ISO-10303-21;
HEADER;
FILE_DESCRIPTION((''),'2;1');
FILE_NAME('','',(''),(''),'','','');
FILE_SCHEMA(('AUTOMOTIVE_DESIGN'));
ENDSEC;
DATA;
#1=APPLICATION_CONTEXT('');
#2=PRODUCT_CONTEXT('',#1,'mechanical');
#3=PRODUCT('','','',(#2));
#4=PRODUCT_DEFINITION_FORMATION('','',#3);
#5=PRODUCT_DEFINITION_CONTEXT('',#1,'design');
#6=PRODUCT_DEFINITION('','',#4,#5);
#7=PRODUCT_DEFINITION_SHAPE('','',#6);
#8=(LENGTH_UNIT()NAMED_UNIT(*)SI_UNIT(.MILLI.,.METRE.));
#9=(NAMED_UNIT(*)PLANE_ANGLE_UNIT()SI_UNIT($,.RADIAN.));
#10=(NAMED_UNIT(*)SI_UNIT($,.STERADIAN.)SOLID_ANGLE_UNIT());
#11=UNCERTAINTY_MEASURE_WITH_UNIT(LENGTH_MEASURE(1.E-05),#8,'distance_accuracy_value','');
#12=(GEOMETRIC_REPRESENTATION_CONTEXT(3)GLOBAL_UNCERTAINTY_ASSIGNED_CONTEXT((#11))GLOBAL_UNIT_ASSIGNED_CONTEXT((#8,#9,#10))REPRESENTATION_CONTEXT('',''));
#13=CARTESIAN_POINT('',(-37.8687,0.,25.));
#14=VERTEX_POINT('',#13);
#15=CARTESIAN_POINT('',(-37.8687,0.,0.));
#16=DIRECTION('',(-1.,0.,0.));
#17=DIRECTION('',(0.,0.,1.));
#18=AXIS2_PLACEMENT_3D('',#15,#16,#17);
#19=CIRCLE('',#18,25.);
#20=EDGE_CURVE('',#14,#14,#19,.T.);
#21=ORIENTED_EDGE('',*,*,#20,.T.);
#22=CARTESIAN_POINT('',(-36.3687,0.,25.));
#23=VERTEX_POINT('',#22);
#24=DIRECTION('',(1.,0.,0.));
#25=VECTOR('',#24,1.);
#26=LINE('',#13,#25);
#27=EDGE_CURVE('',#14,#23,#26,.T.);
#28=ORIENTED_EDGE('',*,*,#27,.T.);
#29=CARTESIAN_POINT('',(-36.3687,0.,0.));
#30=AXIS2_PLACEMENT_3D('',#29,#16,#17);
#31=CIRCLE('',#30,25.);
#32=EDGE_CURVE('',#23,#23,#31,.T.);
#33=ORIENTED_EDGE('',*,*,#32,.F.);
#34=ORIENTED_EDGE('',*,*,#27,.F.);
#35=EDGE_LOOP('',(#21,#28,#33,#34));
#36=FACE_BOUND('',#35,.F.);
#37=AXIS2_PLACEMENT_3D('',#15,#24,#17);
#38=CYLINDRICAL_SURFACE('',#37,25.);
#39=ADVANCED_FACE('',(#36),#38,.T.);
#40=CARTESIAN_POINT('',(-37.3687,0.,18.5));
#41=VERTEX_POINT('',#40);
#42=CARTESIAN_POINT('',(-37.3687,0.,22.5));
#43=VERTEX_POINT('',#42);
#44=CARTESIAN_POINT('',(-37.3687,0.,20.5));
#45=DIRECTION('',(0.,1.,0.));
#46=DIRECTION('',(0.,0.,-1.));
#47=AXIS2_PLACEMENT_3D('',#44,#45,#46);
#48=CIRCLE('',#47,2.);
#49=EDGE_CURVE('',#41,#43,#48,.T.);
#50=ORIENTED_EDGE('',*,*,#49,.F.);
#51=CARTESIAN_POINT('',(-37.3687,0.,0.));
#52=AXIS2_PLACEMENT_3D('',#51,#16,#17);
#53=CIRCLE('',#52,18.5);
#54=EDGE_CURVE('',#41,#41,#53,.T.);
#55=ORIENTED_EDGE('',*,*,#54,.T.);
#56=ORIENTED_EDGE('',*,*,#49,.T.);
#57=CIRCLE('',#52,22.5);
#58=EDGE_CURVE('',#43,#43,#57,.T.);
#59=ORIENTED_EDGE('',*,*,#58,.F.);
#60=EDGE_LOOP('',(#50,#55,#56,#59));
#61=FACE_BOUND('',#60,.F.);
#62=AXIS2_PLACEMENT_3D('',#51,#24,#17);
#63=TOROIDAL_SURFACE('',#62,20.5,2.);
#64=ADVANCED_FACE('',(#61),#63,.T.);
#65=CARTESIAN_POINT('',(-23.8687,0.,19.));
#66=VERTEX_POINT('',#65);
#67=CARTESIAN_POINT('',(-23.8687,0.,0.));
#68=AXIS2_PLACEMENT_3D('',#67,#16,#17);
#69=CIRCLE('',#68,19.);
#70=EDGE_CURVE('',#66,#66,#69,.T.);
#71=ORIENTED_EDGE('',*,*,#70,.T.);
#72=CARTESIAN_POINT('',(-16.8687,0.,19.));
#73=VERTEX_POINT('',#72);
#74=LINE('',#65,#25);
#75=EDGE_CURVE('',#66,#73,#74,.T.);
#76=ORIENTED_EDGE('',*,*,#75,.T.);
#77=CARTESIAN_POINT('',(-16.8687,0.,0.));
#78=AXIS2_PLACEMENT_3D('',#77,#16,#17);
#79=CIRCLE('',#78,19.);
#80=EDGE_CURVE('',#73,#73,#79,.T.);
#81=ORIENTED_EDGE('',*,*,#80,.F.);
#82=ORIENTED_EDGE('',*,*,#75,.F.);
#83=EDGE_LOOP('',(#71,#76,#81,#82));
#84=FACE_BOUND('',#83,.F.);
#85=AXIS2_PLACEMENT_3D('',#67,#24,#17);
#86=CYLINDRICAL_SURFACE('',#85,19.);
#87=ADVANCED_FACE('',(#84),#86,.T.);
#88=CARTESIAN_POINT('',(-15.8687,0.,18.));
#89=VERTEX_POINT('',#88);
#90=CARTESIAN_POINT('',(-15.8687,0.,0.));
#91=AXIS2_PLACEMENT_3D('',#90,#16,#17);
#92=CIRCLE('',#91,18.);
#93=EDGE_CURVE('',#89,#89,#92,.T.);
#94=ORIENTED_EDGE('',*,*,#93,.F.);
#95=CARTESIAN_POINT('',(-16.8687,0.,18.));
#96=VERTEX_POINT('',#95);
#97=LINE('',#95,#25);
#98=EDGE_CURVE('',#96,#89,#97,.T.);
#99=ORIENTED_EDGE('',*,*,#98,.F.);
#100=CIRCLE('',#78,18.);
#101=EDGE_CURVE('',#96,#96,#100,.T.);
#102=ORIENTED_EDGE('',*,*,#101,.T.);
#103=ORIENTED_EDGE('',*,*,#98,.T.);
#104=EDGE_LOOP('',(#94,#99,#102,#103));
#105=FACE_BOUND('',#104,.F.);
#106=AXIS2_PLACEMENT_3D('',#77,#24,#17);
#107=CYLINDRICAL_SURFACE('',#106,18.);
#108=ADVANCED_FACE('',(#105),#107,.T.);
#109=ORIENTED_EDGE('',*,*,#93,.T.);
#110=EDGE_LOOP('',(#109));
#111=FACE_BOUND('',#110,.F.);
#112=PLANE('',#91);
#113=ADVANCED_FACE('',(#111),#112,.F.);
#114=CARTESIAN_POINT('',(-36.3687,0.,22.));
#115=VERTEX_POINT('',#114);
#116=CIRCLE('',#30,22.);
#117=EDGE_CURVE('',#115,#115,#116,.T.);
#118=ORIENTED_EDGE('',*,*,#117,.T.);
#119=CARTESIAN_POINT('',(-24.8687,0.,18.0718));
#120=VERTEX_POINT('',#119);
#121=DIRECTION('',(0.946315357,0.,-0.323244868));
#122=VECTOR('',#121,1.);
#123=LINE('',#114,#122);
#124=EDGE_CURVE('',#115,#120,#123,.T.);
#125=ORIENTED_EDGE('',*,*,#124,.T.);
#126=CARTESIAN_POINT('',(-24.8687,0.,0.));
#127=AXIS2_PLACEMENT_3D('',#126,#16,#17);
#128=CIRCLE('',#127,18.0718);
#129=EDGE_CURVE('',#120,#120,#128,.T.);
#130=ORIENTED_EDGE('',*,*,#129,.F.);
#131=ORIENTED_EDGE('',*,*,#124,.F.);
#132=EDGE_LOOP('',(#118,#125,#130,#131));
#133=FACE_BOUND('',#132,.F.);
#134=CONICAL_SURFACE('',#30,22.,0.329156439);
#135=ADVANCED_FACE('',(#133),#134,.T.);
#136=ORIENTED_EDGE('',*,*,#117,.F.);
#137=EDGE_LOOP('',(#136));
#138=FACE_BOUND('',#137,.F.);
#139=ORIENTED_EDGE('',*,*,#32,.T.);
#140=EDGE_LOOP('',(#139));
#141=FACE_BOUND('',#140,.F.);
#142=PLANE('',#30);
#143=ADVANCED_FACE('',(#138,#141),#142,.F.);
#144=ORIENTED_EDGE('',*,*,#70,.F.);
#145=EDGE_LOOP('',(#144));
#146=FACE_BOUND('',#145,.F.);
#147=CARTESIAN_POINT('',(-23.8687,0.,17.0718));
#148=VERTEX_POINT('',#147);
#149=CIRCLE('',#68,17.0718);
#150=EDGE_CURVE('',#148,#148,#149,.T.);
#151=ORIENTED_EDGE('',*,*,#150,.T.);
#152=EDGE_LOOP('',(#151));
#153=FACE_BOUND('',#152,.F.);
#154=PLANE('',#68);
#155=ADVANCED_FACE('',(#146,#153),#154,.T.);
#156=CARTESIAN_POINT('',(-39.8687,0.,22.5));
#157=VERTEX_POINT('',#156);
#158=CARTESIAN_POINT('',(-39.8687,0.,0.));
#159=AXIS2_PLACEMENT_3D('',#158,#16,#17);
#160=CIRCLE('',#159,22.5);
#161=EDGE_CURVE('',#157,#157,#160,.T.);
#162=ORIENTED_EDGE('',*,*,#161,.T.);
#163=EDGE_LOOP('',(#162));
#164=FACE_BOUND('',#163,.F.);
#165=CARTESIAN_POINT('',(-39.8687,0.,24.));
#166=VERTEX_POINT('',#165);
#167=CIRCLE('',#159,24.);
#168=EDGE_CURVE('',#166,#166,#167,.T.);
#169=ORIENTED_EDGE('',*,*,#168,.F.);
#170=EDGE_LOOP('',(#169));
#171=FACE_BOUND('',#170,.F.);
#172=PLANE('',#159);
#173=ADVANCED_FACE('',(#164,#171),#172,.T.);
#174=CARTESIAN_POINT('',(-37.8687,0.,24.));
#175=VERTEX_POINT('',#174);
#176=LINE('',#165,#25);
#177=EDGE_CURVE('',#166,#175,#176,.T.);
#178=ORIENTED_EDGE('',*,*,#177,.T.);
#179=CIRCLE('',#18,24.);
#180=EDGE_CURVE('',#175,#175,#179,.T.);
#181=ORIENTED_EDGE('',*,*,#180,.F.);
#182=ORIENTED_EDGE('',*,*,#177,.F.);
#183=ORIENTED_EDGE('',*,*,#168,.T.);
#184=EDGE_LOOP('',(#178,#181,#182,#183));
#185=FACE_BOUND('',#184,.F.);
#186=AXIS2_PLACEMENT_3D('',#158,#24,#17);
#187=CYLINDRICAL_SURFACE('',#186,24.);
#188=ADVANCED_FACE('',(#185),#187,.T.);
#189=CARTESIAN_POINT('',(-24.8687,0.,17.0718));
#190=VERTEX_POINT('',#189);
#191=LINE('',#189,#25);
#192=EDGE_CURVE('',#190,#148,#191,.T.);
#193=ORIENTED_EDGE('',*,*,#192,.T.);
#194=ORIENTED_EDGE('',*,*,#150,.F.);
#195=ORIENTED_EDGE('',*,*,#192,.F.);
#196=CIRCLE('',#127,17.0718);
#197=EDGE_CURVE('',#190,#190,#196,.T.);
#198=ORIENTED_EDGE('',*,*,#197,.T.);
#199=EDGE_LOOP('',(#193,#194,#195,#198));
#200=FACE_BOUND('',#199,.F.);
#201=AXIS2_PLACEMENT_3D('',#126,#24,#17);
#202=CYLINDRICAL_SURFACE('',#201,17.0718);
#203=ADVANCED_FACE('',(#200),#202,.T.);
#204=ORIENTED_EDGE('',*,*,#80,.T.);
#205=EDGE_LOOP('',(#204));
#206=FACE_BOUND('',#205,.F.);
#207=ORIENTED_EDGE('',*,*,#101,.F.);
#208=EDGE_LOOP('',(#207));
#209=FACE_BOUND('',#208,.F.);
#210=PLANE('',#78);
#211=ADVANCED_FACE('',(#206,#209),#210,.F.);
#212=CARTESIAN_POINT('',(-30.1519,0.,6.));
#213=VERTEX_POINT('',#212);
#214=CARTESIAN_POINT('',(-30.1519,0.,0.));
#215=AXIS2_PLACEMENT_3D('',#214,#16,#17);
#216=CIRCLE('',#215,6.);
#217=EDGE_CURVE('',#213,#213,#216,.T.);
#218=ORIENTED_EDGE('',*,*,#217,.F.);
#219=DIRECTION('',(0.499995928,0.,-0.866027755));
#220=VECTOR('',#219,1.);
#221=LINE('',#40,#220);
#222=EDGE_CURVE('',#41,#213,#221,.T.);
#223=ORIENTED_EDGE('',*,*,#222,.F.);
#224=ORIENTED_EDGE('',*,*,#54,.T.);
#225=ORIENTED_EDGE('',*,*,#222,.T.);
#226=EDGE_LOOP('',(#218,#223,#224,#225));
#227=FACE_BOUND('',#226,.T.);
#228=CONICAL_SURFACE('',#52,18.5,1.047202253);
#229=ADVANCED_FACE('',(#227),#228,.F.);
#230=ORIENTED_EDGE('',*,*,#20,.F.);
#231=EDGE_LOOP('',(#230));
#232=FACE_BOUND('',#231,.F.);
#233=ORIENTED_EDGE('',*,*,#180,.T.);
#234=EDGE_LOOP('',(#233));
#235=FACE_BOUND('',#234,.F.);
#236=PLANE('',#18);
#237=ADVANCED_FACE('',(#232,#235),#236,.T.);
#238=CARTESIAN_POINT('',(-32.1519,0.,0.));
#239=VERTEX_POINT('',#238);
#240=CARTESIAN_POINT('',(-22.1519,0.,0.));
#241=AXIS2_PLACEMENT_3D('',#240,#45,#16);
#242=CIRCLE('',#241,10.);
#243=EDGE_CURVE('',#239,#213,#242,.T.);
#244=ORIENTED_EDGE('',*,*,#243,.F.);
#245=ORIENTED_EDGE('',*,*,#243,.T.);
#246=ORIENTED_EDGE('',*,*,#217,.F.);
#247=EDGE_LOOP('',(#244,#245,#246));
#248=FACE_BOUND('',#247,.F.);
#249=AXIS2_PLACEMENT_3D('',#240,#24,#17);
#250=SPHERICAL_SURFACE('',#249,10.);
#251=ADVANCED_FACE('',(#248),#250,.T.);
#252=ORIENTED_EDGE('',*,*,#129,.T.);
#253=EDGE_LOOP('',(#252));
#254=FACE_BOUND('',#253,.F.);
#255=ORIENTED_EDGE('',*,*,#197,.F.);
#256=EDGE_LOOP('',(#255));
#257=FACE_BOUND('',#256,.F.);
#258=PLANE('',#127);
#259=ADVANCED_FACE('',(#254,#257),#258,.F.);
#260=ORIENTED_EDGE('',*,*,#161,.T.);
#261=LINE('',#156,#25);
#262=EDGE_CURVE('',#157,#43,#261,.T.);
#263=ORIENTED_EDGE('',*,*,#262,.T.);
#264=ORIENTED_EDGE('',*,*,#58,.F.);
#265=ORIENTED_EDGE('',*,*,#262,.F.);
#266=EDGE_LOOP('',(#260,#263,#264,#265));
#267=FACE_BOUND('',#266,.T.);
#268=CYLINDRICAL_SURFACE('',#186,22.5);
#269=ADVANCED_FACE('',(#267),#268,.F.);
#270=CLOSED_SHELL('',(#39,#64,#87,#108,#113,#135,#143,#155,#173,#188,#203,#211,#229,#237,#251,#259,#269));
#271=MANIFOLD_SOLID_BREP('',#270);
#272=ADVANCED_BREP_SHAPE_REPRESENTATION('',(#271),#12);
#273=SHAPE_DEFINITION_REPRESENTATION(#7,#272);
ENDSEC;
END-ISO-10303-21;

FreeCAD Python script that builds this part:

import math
import FreeCAD as App
import Part
import Sketcher
from FreeCAD import Vector
Q = App.Units.Quantity

doc = App.newDocument("Part")
body = doc.addObject("PartDesign::Body", "Body")

sketch1 = doc.addObject("Sketcher::SketchObject", "Sketch")
body.addObject(sketch1)
sketch1.AttachmentSupport = (doc.XZ_Plane, [""])
sketch1.MapMode = "FlatFace"
sketch1.addGeometry([
    Part.LineSegment(Vector(-37.3687, 22.5, 0), Vector(-39.8687, 22.5, 0)),
    Part.LineSegment(Vector(-39.8687, 22.5, 0), Vector(-39.8687, 24, 0)),
    Part.LineSegment(Vector(-39.8687, 24, 0), Vector(-37.8687, 24, 0)),
    Part.LineSegment(Vector(-37.8687, 24, 0), Vector(-37.8687, 25, 0)),
    Part.LineSegment(Vector(-37.8687, 25, 0), Vector(-36.3687, 25, 0)),
    Part.LineSegment(Vector(-36.3687, 25, 0), Vector(-36.3687, 22, 0)),
    Part.LineSegment(Vector(-36.3687, 22, 0), Vector(-24.8687, 18.0718, 0)),
    Part.LineSegment(Vector(-24.8687, 18.0718, 0), Vector(-24.8687, 17.0718, 0)),
    Part.LineSegment(Vector(-24.8687, 17.0718, 0), Vector(-23.8687, 17.0718, 0)),
    Part.LineSegment(Vector(-23.8687, 17.0718, 0), Vector(-23.8687, 19, 0)),
    Part.LineSegment(Vector(-23.8687, 19, 0), Vector(-16.8687, 19, 0)),
    Part.LineSegment(Vector(-16.8687, 19, 0), Vector(-16.8687, 18, 0)),
    Part.LineSegment(Vector(-16.8687, 18, 0), Vector(-15.8687, 18, 0)),
    Part.LineSegment(Vector(-15.8687, 18, 0), Vector(-15.8687, 0, 0)),
    Part.LineSegment(Vector(-15.8687, 0, 0), Vector(-32.1519, 0, 0)),
    Part.ArcOfCircle(Part.Circle(Vector(-22.1519, 0, 0), Vector(0, 0, 1), 10), math.radians(143.130102), math.radians(180)),
    Part.LineSegment(Vector(-30.1519, 6, 0), Vector(-37.3687, 18.5, 0)),
    Part.ArcOfCircle(Part.Circle(Vector(-37.3687, 20.5, 0), Vector(0, 0, 1), 2), math.radians(90), math.radians(270)),
], False)
sketch1.addConstraint([
    Sketcher.Constraint("Coincident", 0, 2, 1, 1),
    Sketcher.Constraint("Coincident", 1, 2, 2, 1),
    Sketcher.Constraint("Coincident", 2, 2, 3, 1),
    Sketcher.Constraint("Coincident", 3, 2, 4, 1),
    Sketcher.Constraint("Coincident", 4, 2, 5, 1),
    Sketcher.Constraint("Coincident", 5, 2, 6, 1),
    Sketcher.Constraint("Coincident", 6, 2, 7, 1),
    Sketcher.Constraint("Coincident", 7, 2, 8, 1),
    Sketcher.Constraint("Coincident", 8, 2, 9, 1),
    Sketcher.Constraint("Coincident", 9, 2, 10, 1),
    Sketcher.Constraint("Coincident", 10, 2, 11, 1),
    Sketcher.Constraint("Coincident", 11, 2, 12, 1),
    Sketcher.Constraint("Coincident", 12, 2, 13, 1),
    Sketcher.Constraint("Coincident", 13, 2, 14, 1),
    Sketcher.Constraint("Coincident", 14, 2, 15, 2),
    Sketcher.Constraint("Coincident", 15, 1, 16, 1),
    Sketcher.Constraint("Coincident", 16, 2, 17, 2),
    Sketcher.Constraint("Tangent", 17, 1, 0, 1),
    Sketcher.Constraint("Horizontal", 0),
    Sketcher.Constraint("Vertical", 1),
    Sketcher.Constraint("Horizontal", 2),
    Sketcher.Constraint("Vertical", 3),
    Sketcher.Constraint("Horizontal", 4),
    Sketcher.Constraint("Vertical", 5),
    Sketcher.Constraint("Vertical", 7),
    Sketcher.Constraint("Horizontal", 8),
    Sketcher.Constraint("Vertical", 9),
    Sketcher.Constraint("Horizontal", 10),
    Sketcher.Constraint("Vertical", 11),
    Sketcher.Constraint("Horizontal", 12),
    Sketcher.Constraint("Vertical", 13),
    Sketcher.Constraint("Horizontal", 14),
    Sketcher.Constraint("PointOnObject", 15, 3, -1),
    Sketcher.Constraint("PointOnObject", 13, 2, -1),
    Sketcher.Constraint("Vertical", 17, 3, 16, 2),
    Sketcher.Constraint("Equal", 8, 12),
    Sketcher.Constraint("Equal", 4, 1),
    Sketcher.Constraint("Equal", 12, 3),
    Sketcher.Constraint("Equal", 3, 7),
    Sketcher.Constraint("Equal", 7, 11),
    Sketcher.Constraint("Radius", 17, Q("2 mm")),
    Sketcher.Constraint("DistanceX", 2, 1, 2, 2, Q("2 mm")),
    Sketcher.Constraint("DistanceX", 8, 1, 8, 2, Q("1 mm")),
    Sketcher.Constraint("DistanceX", 10, 1, 10, 2, Q("7 mm")),
    Sketcher.Constraint("DistanceY", 5, 2, 5, 1, Q("3 mm")),
    Sketcher.Constraint("DistanceY", 13, 2, 13, 1, Q("18 mm")),
    Sketcher.Constraint("DistanceX", 0, 2, 0, 1, Q("2.5 mm")),
    Sketcher.Constraint("DistanceX", 4, 1, 4, 2, Q("1.5 mm")),
    Sketcher.Constraint("DistanceY", -1, 1, 1, 2, Q("24 mm")),
    Sketcher.Constraint("DistanceY", -1, 1, 15, 1, Q("6 mm")),
    Sketcher.Constraint("Radius", 15, Q("10 mm")),
    Sketcher.Constraint("Angle", 16, Q("119.9997 deg")),
    Sketcher.Constraint("DistanceX", 2, 2, 6, 2, Q("13 mm")),
    Sketcher.Constraint("Angle", 6, Q("-18.8593 deg")),
    Sketcher.Constraint("DistanceX", 15, 3, -1, 1, Q("22.152 mm")),
])
revolution = doc.addObject("PartDesign::Revolution", "Revolution")
body.addObject(revolution)
revolution.Profile = sketch1
revolution.ReferenceAxis = (sketch1, ["H_Axis"])
revolution.Angle = 360

doc.recompute()
